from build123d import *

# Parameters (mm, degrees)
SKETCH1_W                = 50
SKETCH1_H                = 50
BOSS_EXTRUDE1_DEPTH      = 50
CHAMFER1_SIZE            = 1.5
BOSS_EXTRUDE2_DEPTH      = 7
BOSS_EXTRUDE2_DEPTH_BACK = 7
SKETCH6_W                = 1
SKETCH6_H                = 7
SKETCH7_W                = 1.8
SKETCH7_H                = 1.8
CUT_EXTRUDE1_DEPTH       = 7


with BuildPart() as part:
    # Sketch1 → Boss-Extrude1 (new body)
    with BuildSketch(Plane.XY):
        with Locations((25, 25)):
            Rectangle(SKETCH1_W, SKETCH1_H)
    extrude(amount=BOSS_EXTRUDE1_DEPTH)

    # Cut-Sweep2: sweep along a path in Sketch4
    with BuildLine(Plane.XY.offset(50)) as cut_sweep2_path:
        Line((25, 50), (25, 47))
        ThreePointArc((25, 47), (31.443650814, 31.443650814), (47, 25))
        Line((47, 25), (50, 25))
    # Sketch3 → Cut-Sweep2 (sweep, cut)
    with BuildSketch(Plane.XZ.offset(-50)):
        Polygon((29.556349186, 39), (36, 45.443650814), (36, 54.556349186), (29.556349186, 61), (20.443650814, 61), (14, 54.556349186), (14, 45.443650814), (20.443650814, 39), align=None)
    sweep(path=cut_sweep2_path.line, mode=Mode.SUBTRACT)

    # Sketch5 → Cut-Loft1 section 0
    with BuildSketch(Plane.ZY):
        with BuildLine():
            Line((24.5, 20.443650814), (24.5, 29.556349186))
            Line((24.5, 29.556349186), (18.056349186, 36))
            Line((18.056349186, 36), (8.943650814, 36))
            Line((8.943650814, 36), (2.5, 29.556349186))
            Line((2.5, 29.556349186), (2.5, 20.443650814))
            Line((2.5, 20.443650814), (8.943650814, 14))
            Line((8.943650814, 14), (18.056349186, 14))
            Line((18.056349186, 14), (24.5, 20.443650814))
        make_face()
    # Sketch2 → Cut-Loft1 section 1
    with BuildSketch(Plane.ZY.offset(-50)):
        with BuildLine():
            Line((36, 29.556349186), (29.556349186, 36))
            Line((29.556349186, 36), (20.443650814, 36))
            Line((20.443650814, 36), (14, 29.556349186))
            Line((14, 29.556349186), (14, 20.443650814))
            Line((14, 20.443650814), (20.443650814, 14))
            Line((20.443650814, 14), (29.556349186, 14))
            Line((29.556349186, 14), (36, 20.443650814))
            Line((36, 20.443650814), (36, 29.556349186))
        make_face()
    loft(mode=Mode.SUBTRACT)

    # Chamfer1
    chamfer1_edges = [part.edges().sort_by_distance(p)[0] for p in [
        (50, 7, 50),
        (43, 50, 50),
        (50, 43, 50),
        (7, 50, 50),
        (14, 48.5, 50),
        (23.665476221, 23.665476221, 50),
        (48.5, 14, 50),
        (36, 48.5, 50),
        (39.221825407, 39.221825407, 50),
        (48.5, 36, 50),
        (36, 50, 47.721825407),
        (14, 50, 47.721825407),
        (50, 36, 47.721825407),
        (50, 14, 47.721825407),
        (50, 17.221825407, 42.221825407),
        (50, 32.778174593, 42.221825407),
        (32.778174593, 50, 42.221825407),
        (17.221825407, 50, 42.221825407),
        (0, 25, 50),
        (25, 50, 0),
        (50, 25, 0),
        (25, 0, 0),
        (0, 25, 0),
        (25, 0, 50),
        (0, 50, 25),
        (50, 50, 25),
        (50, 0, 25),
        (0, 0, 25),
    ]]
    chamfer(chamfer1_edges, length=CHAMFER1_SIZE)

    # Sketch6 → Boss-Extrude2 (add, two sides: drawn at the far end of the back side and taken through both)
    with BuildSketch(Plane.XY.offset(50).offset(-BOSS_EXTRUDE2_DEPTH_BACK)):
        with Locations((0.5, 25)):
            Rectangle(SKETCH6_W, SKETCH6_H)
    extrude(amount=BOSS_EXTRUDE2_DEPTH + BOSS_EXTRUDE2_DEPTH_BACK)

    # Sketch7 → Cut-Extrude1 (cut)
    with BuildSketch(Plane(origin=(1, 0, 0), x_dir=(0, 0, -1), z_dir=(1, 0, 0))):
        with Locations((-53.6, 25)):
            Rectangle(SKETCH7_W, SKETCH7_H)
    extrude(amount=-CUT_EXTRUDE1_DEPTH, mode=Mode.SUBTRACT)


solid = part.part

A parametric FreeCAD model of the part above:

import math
import FreeCAD as App
import Part
import Sketcher
from FreeCAD import Vector
Q = App.Units.Quantity


def edges_at(feature, points):
    """Names of the edges that pass closest to the given points."""
    edges = feature.Shape.Edges
    near = lambda p: min(range(len(edges)), key=lambda i: edges[i].distToShape(Part.Vertex(*p))[0])
    return sorted({f"Edge{near(p) + 1}" for p in points})


def add_polygon(sketch, points):
    """Adds a closed chain of lines whose ends are joined by coincident constraints."""
    first, n = sketch.GeometryCount, len(points)
    for a, b in zip(points, points[1:] + points[:1]):
        sketch.addGeometry(Part.LineSegment(App.Vector(*a, 0), App.Vector(*b, 0)), False)
    for i in range(n):
        sketch.addConstraint(Sketcher.Constraint("Coincident", first + i, 2, first + (i + 1) % n, 1))

doc = App.newDocument("Part")
body = doc.addObject("PartDesign::Body", "Body")

# Sketch on XY plane
sketch1 = body.newObject("Sketcher::SketchObject", "Sketch")
sketch1.AttachmentSupport = (doc.getObject("XY_Plane"), [""])
sketch1.MapMode = "FlatFace"
add_polygon(sketch1, [(0, 50), (0, 0), (50, 0), (50, 50)])  # lines 0-3
sketch1.addConstraint(Sketcher.Constraint("Vertical", 0))
sketch1.addConstraint(Sketcher.Constraint("Horizontal", 1))
sketch1.addConstraint(Sketcher.Constraint("Vertical", 2))
sketch1.addConstraint(Sketcher.Constraint("Horizontal", 3))
sketch1.addConstraint(Sketcher.Constraint("Coincident", 0, 2, -1, 1))
sketch1.addConstraint(Sketcher.Constraint("Equal", 3, 0))
sketch1.addConstraint(Sketcher.Constraint("DistanceX", 1, 1, 1, 2, Q("50 mm")))
pad1 = body.newObject("PartDesign::Pad", "Pad")
pad1.Profile = sketch1
pad1.Length = 50

# Sketch on XZ plane
sketch2 = body.newObject("Sketcher::SketchObject", "Sketch001")
sketch2.AttachmentSupport = (doc.getObject("XZ_Plane"), [""])
sketch2.MapMode = "FlatFace"
sketch2.AttachmentOffset = App.Placement(Vector(0, 0, -50), App.Rotation())
add_polygon(sketch2, [(30, 39), (36, 45), (36, 55), (30, 61), (20, 61), (14, 55), (14, 45), (20, 39)])  # lines 0-7
sketch2.addConstraint(Sketcher.Constraint("Vertical", 1))
sketch2.addConstraint(Sketcher.Constraint("Horizontal", 3))
sketch2.addConstraint(Sketcher.Constraint("Vertical", 5))
sketch2.addConstraint(Sketcher.Constraint("Horizontal", 7))
sketch2.addConstraint(Sketcher.Constraint("Perpendicular", 0, 2))
sketch2.addConstraint(Sketcher.Constraint("Perpendicular", 2, 4))
sketch2.addConstraint(Sketcher.Constraint("Perpendicular", 4, 6))
sketch2.addConstraint(Sketcher.Constraint("Horizontal", 1, 2, 4, 2))
sketch2.addConstraint(Sketcher.Constraint("Horizontal", 0, 2, 5, 2))
sketch2.addConstraint(Sketcher.Constraint("Vertical", 3, 2, 6, 2))
sketch2.addConstraint(Sketcher.Constraint("Vertical", 2, 2, 7, 2))
sketch2.addConstraint(Sketcher.Constraint("Equal", 7, 1))
sketch2.addConstraint(Sketcher.Constraint("DistanceX", -1, 1, 0, 2, Q("36 mm")))
sketch2.addConstraint(Sketcher.Constraint("DistanceY", -1, 1, 2, 2, Q("61 mm")))
sketch2.addConstraint(Sketcher.Constraint("DistanceX", -1, 1, 4, 2, Q("14 mm")))
sketch2.addConstraint(Sketcher.Constraint("DistanceX", 3, 2, 3, 1, Q("9.112698 mm")))

# Sketch on XY plane
sketch3 = body.newObject("Sketcher::SketchObject", "Sketch002")
sketch3.AttachmentSupport = (doc.getObject("XY_Plane"), [""])
sketch3.MapMode = "FlatFace"
sketch3.AttachmentOffset = App.Placement(Vector(0, 0, 50), App.Rotation())
sketch3.addGeometry(Part.LineSegment(Vector(25, 50, 0), Vector(25, 47, 0)), False)
sketch3.addGeometry(Part.ArcOfCircle(Part.Circle(Vector(47, 47, 0), Vector(0, 0, 1), 22), math.radians(180), math.radians(270)), False)
sketch3.addGeometry(Part.LineSegment(Vector(47, 25, 0), Vector(50, 25, 0)), False)
sketch3.addConstraint(Sketcher.Constraint("Tangent", 0, 2, 1, 1))
sketch3.addConstraint(Sketcher.Constraint("Tangent", 1, 2, 2, 1))
sketch3.addConstraint(Sketcher.Constraint("Vertical", 0))
sketch3.addConstraint(Sketcher.Constraint("Horizontal", 2))
sketch3.addConstraint(Sketcher.Constraint("Equal", 2, 0))
sketch3.addConstraint(Sketcher.Constraint("Radius", 1, Q("22 mm")))
sketch3.addConstraint(Sketcher.Constraint("DistanceX", 2, 1, 2, 2, Q("3 mm")))
sketch3.addConstraint(Sketcher.Constraint("DistanceX", -1, 1, 1, 3, Q("47 mm")))
sketch3.addConstraint(Sketcher.Constraint("DistanceY", -1, 1, 1, 3, Q("47 mm")))
doc.recompute()

subtractivepipe = body.newObject("PartDesign::SubtractivePipe", "SubtractivePipe")
subtractivepipe.Profile = sketch2
subtractivepipe.Spine = (sketch3, ["Edge1", "Edge2", "Edge3"])

# Sketch on YZ plane
sketch4 = body.newObject("Sketcher::SketchObject", "Sketch003")
sketch4.AttachmentSupport = (doc.getObject("YZ_Plane"), [""])
sketch4.MapMode = "FlatFace"
add_polygon(sketch4, [(20, 24), (30, 24), (36, 18), (36, 9), (30, 2), (20, 2), (14, 9), (14, 18)])  # lines 0-7
sketch4.addConstraint(Sketcher.Constraint("Horizontal", 0))
sketch4.addConstraint(Sketcher.Constraint("Vertical", 2))
sketch4.addConstraint(Sketcher.Constraint("Horizontal", 4))
sketch4.addConstraint(Sketcher.Constraint("Vertical", 6))
sketch4.addConstraint(Sketcher.Constraint("Perpendicular", 1, 3))
sketch4.addConstraint(Sketcher.Constraint("Perpendicular", 3, 5))
sketch4.addConstraint(Sketcher.Constraint("Perpendicular", 5, 7))
sketch4.addConstraint(Sketcher.Constraint("Horizontal", 2, 2, 5, 2))
sketch4.addConstraint(Sketcher.Constraint("Horizontal", 1, 2, 6, 2))
sketch4.addConstraint(Sketcher.Constraint("Vertical", 0, 2, 3, 2))
sketch4.addConstraint(Sketcher.Constraint("Vertical", 4, 2, 7, 2))
sketch4.addConstraint(Sketcher.Constraint("Equal", 4, 2))
sketch4.addConstraint(Sketcher.Constraint("DistanceX", -1, 1, 1, 2, Q("36 mm")))
sketch4.addConstraint(Sketcher.Constraint("DistanceX", -1, 1, 5, 2, Q("14 mm")))
sketch4.addConstraint(Sketcher.Constraint("DistanceY", -1, 1, 0, 2, Q("24.5 mm")))
sketch4.addConstraint(Sketcher.Constraint("DistanceX", 0, 1, 0, 2, Q("9.112698 mm")))

# Sketch on YZ plane
sketch5 = body.newObject("Sketcher::SketchObject", "Sketch004")
sketch5.AttachmentSupport = (doc.getObject("YZ_Plane"), [""])
sketch5.MapMode = "FlatFace"
sketch5.AttachmentOffset = App.Placement(Vector(0, 0, 50), App.Rotation())
add_polygon(sketch5, [(30, 36), (36, 30), (36, 20), (30, 14), (20, 14), (14, 20), (14, 30), (20, 36)])  # lines 0-7
sketch5.addConstraint(Sketcher.Constraint("Vertical", 1))
sketch5.addConstraint(Sketcher.Constraint("Horizontal", 3))
sketch5.addConstraint(Sketcher.Constraint("Vertical", 5))
sketch5.addConstraint(Sketcher.Constraint("Horizontal", 7))
sketch5.addConstraint(Sketcher.Constraint("Perpendicular", 0, 2))
sketch5.addConstraint(Sketcher.Constraint("Perpendicular", 2, 4))
sketch5.addConstraint(Sketcher.Constraint("Perpendicular", 4, 6))
sketch5.addConstraint(Sketcher.Constraint("Horizontal", 1, 2, 4, 2))
sketch5.addConstraint(Sketcher.Constraint("Horizontal", 0, 2, 5, 2))
sketch5.addConstraint(Sketcher.Constraint("Vertical", 3, 2, 6, 2))
sketch5.addConstraint(Sketcher.Constraint("Vertical", 2, 2, 7, 2))
sketch5.addConstraint(Sketcher.Constraint("Equal", 7, 1))
sketch5.addConstraint(Sketcher.Constraint("DistanceX", -1, 1, 0, 2, Q("36 mm")))
sketch5.addConstraint(Sketcher.Constraint("DistanceY", -1, 1, 2, 2, Q("14 mm")))
sketch5.addConstraint(Sketcher.Constraint("DistanceX", -1, 1, 4, 2, Q("14 mm")))
sketch5.addConstraint(Sketcher.Constraint("DistanceX", 3, 2, 3, 1, Q("9.112698 mm")))

subtractiveloft = body.newObject("PartDesign::SubtractiveLoft", "SubtractiveLoft")
subtractiveloft.Profile = sketch4
subtractiveloft.Sections = [sketch5]
doc.recompute()

chamfer = body.newObject("PartDesign::Chamfer", "Chamfer")
chamfer.Base = (subtractiveloft, edges_at(subtractiveloft, [
    (50, 7, 50),
    (43, 50, 50),
    (50, 43, 50),
    (7, 50, 50),
    (14, 48.5, 50),
    (23.665, 23.665, 50),
    (48.5, 14, 50),
    (36, 48.5, 50),
    (39.222, 39.222, 50),
    (48.5, 36, 50),
    (36, 50, 47.722),
    (14, 50, 47.722),
    (50, 36, 47.722),
    (50, 14, 47.722),
    (50, 17.222, 42.222),
    (50, 32.778, 42.222),
    (32.778, 50, 42.222),
    (17.222, 50, 42.222),
    (0, 25, 50),
    (25, 50, 0),
    (50, 25, 0),
    (25, 0, 0),
    (0, 25, 0),
    (25, 0, 50),
    (0, 50, 25),
    (50, 50, 25),
    (50, 0, 25),
    (0, 0, 25),
]))
chamfer.Size = 1.5

# Sketch on XY plane
sketch6 = body.newObject("Sketcher::SketchObject", "Sketch005")
sketch6.AttachmentSupport = (doc.getObject("XY_Plane"), [""])
sketch6.MapMode = "FlatFace"
sketch6.AttachmentOffset = App.Placement(Vector(0, 0, 50), App.Rotation())
add_polygon(sketch6, [(0, 28.5), (0, 21.5), (1, 21.5), (1, 28.5)])  # lines 0-3
sketch6.addConstraint(Sketcher.Constraint("Vertical", 0))
sketch6.addConstraint(Sketcher.Constraint("Horizontal", 1))
sketch6.addConstraint(Sketcher.Constraint("Vertical", 2))
sketch6.addConstraint(Sketcher.Constraint("Horizontal", 3))
sketch6.addConstraint(Sketcher.Constraint("PointOnObject", 0, 2, -2))
sketch6.addConstraint(Sketcher.Constraint("DistanceX", 1, 1, 1, 2, Q("1 mm")))
sketch6.addConstraint(Sketcher.Constraint("DistanceY", 0, 2, 0, 1, Q("7 mm")))
sketch6.addConstraint(Sketcher.Constraint("DistanceY", -1, 1, 0, 2, Q("21.5 mm")))
pad2 = body.newObject("PartDesign::Pad", "Pad001")
pad2.Profile = sketch6
pad2.Type = "TwoLengths"
pad2.Length = 7
pad2.Length2 = 7

# Sketch on YZ plane
sketch7 = body.newObject("Sketcher::SketchObject", "Sketch006")
sketch7.AttachmentSupport = (doc.getObject("YZ_Plane"), [""])
sketch7.MapMode = "FlatFace"
sketch7.AttachmentOffset = App.Placement(Vector(0, 0, 1), App.Rotation())
add_polygon(sketch7, [(25.9, 54.5), (24.1, 54.5), (24.1, 52.7), (25.9, 52.7)])  # lines 0-3
sketch7.addConstraint(Sketcher.Constraint("Horizontal", 0))
sketch7.addConstraint(Sketcher.Constraint("Vertical", 1))
sketch7.addConstraint(Sketcher.Constraint("Horizontal", 2))
sketch7.addConstraint(Sketcher.Constraint("Vertical", 3))
sketch7.addConstraint(Sketcher.Constraint("Equal", 2, 1))
sketch7.addConstraint(Sketcher.Constraint("DistanceX", 0, 2, 0, 1, Q("1.8 mm")))
sketch7.addConstraint(Sketcher.Constraint("DistanceX", -1, 1, 0, 2, Q("24.1 mm")))
sketch7.addConstraint(Sketcher.Constraint("DistanceY", -1, 1, 0, 2, Q("54.5 mm")))
pocket1 = body.newObject("PartDesign::Pocket", "Pocket")
pocket1.Profile = sketch7
pocket1.Length = 7

doc.recompute()
